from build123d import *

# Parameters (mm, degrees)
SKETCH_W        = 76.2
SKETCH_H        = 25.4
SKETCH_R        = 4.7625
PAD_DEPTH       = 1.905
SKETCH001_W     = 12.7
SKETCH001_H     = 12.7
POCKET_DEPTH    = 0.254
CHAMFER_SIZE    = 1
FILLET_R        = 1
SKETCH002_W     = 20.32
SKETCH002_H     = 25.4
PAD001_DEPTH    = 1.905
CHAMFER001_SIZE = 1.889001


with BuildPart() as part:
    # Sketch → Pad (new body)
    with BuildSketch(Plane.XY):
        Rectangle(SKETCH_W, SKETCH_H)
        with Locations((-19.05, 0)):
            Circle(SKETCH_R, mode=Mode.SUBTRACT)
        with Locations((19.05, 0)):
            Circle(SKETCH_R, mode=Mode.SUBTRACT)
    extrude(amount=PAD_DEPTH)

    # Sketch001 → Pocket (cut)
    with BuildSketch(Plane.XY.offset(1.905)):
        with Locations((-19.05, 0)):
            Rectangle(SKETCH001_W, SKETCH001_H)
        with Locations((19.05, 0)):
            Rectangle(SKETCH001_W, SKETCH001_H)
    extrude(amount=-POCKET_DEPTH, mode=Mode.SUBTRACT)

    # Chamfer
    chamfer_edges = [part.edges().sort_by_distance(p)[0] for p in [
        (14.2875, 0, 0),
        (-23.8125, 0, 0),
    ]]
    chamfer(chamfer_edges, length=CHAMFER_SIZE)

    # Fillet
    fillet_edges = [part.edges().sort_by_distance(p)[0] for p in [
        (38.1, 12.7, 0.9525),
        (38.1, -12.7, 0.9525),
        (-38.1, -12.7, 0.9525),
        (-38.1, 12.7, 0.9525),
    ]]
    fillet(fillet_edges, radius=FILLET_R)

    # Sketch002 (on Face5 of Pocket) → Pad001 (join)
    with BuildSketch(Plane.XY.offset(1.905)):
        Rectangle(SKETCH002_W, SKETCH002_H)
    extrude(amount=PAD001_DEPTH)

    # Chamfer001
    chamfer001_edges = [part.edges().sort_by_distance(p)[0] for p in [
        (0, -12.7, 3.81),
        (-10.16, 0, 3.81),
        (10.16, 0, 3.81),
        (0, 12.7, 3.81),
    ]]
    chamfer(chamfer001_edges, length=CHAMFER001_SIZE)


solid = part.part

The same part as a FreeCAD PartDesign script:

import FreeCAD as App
import Part
import Sketcher
Q = App.Units.Quantity


def edges_at(feature, points):
    """Names of the edges that pass closest to the given points."""
    edges = feature.Shape.Edges
    near = lambda p: min(range(len(edges)), key=lambda i: edges[i].distToShape(Part.Vertex(*p))[0])
    return sorted({f"Edge{near(p) + 1}" for p in points})

doc = App.newDocument("Part")
params = doc.addObject("Spreadsheet::Sheet", "Params")
for row, (alias, value) in enumerate([
    ("sketch1_width", "3 in"),
    ("sketch1_height", "1 in"),
    ("sketch1_diameter", "0.375 in"),
    ("pad1_length", "0.075 in"),
    ("sketch2_width", "0.5 in"),
    ("pocket1_length", "0.01 in"),
    ("chamfer_size", "1 mm"),
    ("fillet_radius", "1 mm"),
    ("sketch3_height", "1 in"),
    ("sketch3_width", "0.8 in"),
    ("pad2_length", "0.075 in"),
    ("chamfer2_size", "1.889001 mm"),
], start=1):
    params.set(f"A{row}", alias)
    params.set(f"B{row}", "=" + value)
    params.setAlias(f"B{row}", alias)

body = doc.addObject("PartDesign::Body", "Body")

sketch1 = body.newObject("Sketcher::SketchObject", "Sketch")
sketch1.AttachmentSupport = (doc.getObject("XY_Plane"), [""])
sketch1.MapMode = "FlatFace"
sketch1.addGeometry([
    Part.LineSegment(App.Vector(-38.1, 12.7, 0), App.Vector(-38.1, -12.7, 0)),
    Part.LineSegment(App.Vector(-38.1, -12.7, 0), App.Vector(38.1, -12.7, 0)),
    Part.LineSegment(App.Vector(38.1, -12.7, 0), App.Vector(38.1, 12.7, 0)),
    Part.LineSegment(App.Vector(38.1, 12.7, 0), App.Vector(-38.1, 12.7, 0)),
    Part.Circle(App.Vector(-19.1, 0, 0), App.Vector(0, 0, 1), 4.8),
    Part.Circle(App.Vector(19.1, 0, 0), App.Vector(0, 0, 1), 4.8),
], False)
sketch1.addConstraint([
    Sketcher.Constraint("Coincident", 0, 2, 1, 1),
    Sketcher.Constraint("Coincident", 1, 2, 2, 1),
    Sketcher.Constraint("Coincident", 2, 2, 3, 1),
    Sketcher.Constraint("Coincident", 3, 2, 0, 1),
    Sketcher.Constraint("Vertical", 0),
    Sketcher.Constraint("Horizontal", 1),
    Sketcher.Constraint("Vertical", 2),
    Sketcher.Constraint("Horizontal", 3),
    Sketcher.Constraint("Equal", 4, 5),
    Sketcher.Constraint("Symmetric", 4, 3, 5, 3, -1, 1),
    Sketcher.Constraint("Symmetric", 0, 2, 2, 2, -1, 1),
    Sketcher.Constraint("PointOnObject", 4, 3, -1),
    Sketcher.Constraint("DistanceX", 1, 1, 1, 2, Q("3 in")),
    Sketcher.Constraint("DistanceY", 0, 2, 0, 1, Q("1 in")),
    Sketcher.Constraint("Diameter", 4, Q("0.375 in")),
    Sketcher.Constraint("DistanceX", 4, 3, 5, 3, Q("1.5 in")),
])
sketch1.setExpression("Constraints[12]", "Params.sketch1_width")
sketch1.setExpression("Constraints[13]", "Params.sketch1_height")
sketch1.setExpression("Constraints[14]", "Params.sketch1_diameter")
pad1 = body.newObject("PartDesign::Pad", "Pad")
pad1.Profile = sketch1
pad1.setExpression("Length", "Params.pad1_length")

sketch2 = body.newObject("Sketcher::SketchObject", "Sketch001")
sketch2.AttachmentSupport = (doc.getObject("XY_Plane"), [""])
sketch2.MapMode = "FlatFace"
sketch2.AttachmentOffset = App.Placement(App.Vector(0, 0, 0.075 * 25.4), App.Rotation())
sketch2.addGeometry([
    Part.LineSegment(App.Vector(-25, 6, 0), App.Vector(-25, -6, 0)),
    Part.LineSegment(App.Vector(-25, -6, 0), App.Vector(-13, -6, 0)),
    Part.LineSegment(App.Vector(-13, -6, 0), App.Vector(-13, 6, 0)),
    Part.LineSegment(App.Vector(-13, 6, 0), App.Vector(-25, 6, 0)),
    Part.LineSegment(App.Vector(13, 6, 0), App.Vector(13, -6, 0)),
    Part.LineSegment(App.Vector(13, -6, 0), App.Vector(25, -6, 0)),
    Part.LineSegment(App.Vector(25, -6, 0), App.Vector(25, 6, 0)),
    Part.LineSegment(App.Vector(25, 6, 0), App.Vector(13, 6, 0)),
], False)
sketch2.addConstraint([
    Sketcher.Constraint("Coincident", 0, 2, 1, 1),
    Sketcher.Constraint("Coincident", 1, 2, 2, 1),
    Sketcher.Constraint("Coincident", 2, 2, 3, 1),
    Sketcher.Constraint("Coincident", 3, 2, 0, 1),
    Sketcher.Constraint("Coincident", 4, 2, 5, 1),
    Sketcher.Constraint("Coincident", 5, 2, 6, 1),
    Sketcher.Constraint("Coincident", 6, 2, 7, 1),
    Sketcher.Constraint("Coincident", 7, 2, 4, 1),
    Sketcher.Constraint("Vertical", 0),
    Sketcher.Constraint("Horizontal", 1),
    Sketcher.Constraint("Vertical", 2),
    Sketcher.Constraint("Horizontal", 3),
    Sketcher.Constraint("Vertical", 4),
    Sketcher.Constraint("Horizontal", 5),
    Sketcher.Constraint("Vertical", 6),
    Sketcher.Constraint("Horizontal", 7),
    Sketcher.Constraint("Symmetric", 2, 2, 4, 2, -1, 1),
    Sketcher.Constraint("Symmetric", 0, 2, 6, 2, -1, 1),
    Sketcher.Constraint("Horizontal", 1, 2, 4, 2),
    Sketcher.Constraint("Equal", 7, 0),
    Sketcher.Constraint("DistanceX", 1, 1, 1, 2, Q("0.5 in")),
    Sketcher.Constraint("DistanceX", 0, 2, -1, 1, Q("1 in")),
])
sketch2.setExpression("Constraints[20]", "Params.sketch2_width")
pocket1 = body.newObject("PartDesign::Pocket", "Pocket")
pocket1.Profile = sketch2
pocket1.setExpression("Length", "Params.pocket1_length")
doc.recompute()

chamfer = body.newObject("PartDesign::Chamfer", "Chamfer")
chamfer.Base = (pocket1, edges_at(pocket1, [(14.287, 0, 0), (-23.812, 0, 0)]))
chamfer.setExpression("Size", "Params.chamfer_size")
doc.recompute()

fillet = body.newObject("PartDesign::Fillet", "Fillet")
fillet.Base = (chamfer, edges_at(chamfer, [
    (38.1, 12.7, 0.953),
    (38.1, -12.7, 0.953),
    (-38.1, -12.7, 0.953),
    (-38.1, 12.7, 0.953),
]))
fillet.setExpression("Radius", "Params.fillet_radius")

sketch3 = body.newObject("Sketcher::SketchObject", "Sketch002")
sketch3.AttachmentSupport = (doc.getObject("XY_Plane"), [""])
sketch3.MapMode = "FlatFace"
sketch3.AttachmentOffset = App.Placement(App.Vector(0, 0, 0.075 * 25.4), App.Rotation())
sketch3.addGeometry([
    Part.LineSegment(App.Vector(-10, 13, 0), App.Vector(-10, -13, 0)),
    Part.LineSegment(App.Vector(-10, -13, 0), App.Vector(10, -13, 0)),
    Part.LineSegment(App.Vector(10, -13, 0), App.Vector(10, 13, 0)),
    Part.LineSegment(App.Vector(10, 13, 0), App.Vector(-10, 13, 0)),
], False)
sketch3.addConstraint([
    Sketcher.Constraint("Coincident", 0, 2, 1, 1),
    Sketcher.Constraint("Coincident", 1, 2, 2, 1),
    Sketcher.Constraint("Coincident", 2, 2, 3, 1),
    Sketcher.Constraint("Coincident", 3, 2, 0, 1),
    Sketcher.Constraint("Vertical", 0),
    Sketcher.Constraint("Horizontal", 1),
    Sketcher.Constraint("Vertical", 2),
    Sketcher.Constraint("Horizontal", 3),
    Sketcher.Constraint("Symmetric", 0, 2, 2, 2, -1, 1),
    Sketcher.Constraint("DistanceY", 0, 2, 0, 1, Q("1 in")),
    Sketcher.Constraint("DistanceX", 1, 1, 1, 2, Q("0.8 in")),
])
sketch3.setExpression("Constraints[9]", "Params.sketch3_height")
sketch3.setExpression("Constraints[10]", "Params.sketch3_width")
pad2 = body.newObject("PartDesign::Pad", "Pad001")
pad2.Profile = sketch3
pad2.setExpression("Length", "Params.pad2_length")
doc.recompute()

chamfer2 = body.newObject("PartDesign::Chamfer", "Chamfer001")
chamfer2.Base = (pad2, edges_at(pad2, [
    (0, -12.7, 3.81),
    (-10.16, 0, 3.81),
    (10.16, 0, 3.81),
    (0, 12.7, 3.81),
]))
chamfer2.setExpression("Size", "Params.chamfer2_size")

doc.recompute()
